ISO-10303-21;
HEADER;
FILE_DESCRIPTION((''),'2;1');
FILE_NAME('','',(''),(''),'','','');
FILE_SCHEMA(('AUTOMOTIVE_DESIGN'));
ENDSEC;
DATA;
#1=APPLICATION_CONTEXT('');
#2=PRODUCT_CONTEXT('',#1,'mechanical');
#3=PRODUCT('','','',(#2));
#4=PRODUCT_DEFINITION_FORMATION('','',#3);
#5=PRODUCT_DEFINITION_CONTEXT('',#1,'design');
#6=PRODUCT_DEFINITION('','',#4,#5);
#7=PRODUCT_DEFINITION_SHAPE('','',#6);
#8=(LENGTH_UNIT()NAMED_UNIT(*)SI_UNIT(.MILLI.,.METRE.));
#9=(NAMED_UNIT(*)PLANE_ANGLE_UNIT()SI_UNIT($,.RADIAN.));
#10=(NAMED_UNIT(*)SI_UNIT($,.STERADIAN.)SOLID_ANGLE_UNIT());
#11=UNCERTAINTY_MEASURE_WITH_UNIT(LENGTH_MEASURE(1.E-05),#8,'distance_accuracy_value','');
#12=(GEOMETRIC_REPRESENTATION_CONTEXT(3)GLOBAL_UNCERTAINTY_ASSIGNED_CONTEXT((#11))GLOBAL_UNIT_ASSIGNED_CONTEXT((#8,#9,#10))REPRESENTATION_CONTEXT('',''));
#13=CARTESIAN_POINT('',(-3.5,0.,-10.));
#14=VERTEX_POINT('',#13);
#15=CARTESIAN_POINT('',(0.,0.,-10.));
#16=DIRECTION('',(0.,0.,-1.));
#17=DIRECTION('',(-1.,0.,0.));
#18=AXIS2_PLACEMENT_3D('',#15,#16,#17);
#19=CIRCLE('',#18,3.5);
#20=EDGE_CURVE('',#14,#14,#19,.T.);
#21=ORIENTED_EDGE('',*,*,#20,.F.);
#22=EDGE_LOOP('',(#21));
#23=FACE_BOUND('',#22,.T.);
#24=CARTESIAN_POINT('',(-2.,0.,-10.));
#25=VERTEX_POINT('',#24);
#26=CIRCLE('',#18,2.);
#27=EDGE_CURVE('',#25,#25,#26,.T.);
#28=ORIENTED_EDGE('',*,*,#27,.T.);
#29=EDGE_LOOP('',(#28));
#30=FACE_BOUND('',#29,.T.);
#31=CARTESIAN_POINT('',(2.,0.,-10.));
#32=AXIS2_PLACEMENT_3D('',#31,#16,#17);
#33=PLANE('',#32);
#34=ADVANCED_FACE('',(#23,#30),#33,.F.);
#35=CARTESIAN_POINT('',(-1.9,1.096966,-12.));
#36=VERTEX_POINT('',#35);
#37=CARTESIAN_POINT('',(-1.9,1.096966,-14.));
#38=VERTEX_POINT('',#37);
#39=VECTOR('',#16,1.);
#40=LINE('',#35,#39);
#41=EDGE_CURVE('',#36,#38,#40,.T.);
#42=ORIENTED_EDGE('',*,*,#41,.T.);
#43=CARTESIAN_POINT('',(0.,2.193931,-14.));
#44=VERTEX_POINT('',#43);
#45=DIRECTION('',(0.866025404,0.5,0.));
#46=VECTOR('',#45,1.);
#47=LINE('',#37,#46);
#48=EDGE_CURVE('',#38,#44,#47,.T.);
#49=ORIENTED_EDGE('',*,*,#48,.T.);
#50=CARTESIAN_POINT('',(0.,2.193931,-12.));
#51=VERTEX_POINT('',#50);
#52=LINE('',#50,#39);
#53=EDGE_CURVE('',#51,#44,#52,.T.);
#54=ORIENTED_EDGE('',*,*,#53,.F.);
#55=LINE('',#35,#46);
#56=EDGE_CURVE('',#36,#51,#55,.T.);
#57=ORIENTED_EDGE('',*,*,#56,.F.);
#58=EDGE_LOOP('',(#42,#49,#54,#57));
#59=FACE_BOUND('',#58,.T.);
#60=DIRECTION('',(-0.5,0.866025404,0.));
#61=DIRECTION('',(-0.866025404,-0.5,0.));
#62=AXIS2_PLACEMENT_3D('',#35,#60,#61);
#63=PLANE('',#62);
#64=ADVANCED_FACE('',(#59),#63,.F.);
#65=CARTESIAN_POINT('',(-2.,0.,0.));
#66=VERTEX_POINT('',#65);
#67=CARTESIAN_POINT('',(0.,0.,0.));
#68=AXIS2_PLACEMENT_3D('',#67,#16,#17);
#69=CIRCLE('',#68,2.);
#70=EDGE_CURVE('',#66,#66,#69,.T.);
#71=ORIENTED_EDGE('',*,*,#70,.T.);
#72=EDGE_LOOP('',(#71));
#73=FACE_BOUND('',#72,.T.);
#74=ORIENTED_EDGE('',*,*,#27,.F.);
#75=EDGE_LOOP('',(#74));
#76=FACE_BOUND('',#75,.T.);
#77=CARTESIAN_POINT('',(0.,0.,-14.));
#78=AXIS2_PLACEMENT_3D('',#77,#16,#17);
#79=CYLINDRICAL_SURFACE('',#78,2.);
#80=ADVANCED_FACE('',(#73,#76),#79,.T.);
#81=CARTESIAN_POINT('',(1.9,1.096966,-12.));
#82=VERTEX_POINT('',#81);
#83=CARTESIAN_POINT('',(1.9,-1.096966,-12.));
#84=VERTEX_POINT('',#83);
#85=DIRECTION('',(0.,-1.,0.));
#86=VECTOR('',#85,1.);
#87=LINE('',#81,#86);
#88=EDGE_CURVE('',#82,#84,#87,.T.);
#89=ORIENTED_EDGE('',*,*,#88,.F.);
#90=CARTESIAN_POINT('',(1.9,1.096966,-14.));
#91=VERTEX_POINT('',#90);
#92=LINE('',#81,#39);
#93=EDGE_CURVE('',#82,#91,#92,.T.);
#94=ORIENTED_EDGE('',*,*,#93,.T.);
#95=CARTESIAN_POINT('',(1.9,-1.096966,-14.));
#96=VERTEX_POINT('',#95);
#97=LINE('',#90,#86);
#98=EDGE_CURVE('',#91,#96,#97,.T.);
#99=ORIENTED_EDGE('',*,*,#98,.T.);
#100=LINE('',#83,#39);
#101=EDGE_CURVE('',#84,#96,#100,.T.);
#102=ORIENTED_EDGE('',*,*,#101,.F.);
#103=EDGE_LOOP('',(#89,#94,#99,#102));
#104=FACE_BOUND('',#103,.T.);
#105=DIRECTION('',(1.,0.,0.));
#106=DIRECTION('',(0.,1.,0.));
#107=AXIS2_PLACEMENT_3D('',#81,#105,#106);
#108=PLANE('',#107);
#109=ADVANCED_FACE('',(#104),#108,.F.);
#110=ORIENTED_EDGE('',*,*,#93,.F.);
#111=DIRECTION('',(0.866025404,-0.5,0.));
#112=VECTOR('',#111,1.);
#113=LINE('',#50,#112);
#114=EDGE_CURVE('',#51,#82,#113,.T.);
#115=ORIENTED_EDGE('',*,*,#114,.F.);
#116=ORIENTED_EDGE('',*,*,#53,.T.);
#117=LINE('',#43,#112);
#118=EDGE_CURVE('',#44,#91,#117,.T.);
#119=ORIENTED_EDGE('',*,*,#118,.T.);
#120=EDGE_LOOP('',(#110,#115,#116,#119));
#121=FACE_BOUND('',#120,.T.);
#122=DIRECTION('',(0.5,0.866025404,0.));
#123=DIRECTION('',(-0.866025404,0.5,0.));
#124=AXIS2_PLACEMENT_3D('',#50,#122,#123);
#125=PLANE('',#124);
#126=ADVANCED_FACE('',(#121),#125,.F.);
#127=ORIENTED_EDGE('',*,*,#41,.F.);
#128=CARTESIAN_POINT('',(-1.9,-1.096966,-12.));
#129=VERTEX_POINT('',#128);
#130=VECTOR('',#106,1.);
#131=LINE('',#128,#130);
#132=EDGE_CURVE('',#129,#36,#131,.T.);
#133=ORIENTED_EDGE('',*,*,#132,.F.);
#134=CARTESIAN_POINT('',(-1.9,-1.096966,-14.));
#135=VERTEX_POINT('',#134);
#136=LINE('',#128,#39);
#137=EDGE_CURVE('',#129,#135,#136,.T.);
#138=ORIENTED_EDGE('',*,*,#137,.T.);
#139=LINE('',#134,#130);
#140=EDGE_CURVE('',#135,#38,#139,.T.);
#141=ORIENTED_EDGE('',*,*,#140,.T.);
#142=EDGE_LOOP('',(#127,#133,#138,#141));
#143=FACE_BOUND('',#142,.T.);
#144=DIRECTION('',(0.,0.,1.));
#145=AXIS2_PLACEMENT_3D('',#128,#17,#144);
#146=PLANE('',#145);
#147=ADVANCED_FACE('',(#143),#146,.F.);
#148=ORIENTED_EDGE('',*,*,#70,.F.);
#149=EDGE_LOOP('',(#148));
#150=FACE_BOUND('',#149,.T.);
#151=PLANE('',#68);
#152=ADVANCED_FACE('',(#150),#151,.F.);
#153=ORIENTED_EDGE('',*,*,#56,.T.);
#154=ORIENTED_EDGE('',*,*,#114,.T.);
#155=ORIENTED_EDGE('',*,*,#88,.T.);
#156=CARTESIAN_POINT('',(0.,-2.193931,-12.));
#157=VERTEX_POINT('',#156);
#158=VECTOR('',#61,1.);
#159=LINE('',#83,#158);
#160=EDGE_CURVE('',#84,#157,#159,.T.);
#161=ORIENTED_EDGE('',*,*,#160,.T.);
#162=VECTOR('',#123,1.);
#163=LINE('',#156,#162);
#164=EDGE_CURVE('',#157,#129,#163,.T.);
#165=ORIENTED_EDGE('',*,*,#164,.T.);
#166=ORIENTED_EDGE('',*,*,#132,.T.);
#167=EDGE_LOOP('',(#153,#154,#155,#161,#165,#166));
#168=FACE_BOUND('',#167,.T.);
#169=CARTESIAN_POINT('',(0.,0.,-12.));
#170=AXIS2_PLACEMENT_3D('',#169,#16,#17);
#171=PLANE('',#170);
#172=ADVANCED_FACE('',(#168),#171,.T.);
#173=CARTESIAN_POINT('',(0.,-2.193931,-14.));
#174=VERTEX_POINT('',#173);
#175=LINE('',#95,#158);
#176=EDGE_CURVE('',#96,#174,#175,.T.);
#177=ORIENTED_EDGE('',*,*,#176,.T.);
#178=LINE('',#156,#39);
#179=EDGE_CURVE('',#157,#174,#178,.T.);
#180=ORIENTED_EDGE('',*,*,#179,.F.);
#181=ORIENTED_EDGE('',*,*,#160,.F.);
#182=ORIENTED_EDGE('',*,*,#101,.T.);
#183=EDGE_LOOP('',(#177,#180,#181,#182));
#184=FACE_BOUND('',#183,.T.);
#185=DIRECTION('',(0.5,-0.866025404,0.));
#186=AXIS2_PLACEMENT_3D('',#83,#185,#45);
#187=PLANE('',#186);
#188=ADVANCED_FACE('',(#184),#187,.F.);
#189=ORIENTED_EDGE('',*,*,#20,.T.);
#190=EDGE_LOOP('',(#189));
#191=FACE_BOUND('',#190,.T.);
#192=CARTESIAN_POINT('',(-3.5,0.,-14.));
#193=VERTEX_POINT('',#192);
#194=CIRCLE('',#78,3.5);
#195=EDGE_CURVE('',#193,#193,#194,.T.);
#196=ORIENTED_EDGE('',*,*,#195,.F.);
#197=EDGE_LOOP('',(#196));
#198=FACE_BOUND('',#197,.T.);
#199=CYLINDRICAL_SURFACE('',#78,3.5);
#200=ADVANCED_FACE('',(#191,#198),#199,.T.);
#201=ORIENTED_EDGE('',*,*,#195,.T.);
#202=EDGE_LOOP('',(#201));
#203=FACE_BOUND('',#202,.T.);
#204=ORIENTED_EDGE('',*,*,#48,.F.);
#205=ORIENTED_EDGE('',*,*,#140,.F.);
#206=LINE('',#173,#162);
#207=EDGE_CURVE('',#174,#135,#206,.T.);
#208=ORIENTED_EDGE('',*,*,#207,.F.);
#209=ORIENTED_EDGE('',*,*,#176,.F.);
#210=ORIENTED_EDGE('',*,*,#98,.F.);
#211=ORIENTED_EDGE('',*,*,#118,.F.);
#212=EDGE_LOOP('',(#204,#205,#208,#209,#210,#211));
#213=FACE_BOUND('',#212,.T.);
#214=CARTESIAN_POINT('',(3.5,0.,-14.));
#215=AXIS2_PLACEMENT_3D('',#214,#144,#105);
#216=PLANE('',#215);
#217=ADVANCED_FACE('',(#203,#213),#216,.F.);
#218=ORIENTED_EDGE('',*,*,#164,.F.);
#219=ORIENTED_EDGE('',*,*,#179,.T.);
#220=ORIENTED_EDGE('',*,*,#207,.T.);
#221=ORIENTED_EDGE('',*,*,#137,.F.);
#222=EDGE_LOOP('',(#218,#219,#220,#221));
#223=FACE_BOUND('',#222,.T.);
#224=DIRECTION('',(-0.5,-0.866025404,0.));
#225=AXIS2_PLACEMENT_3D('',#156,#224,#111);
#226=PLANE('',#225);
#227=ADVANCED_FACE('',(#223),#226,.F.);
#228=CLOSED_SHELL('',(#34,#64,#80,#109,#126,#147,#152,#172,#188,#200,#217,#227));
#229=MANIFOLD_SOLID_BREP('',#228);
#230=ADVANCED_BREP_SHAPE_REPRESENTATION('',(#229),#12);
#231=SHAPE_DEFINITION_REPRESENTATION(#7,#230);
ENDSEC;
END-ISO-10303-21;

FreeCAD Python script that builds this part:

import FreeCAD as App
import Part
import Sketcher
from FreeCAD import Vector
Q = App.Units.Quantity


def add_polygon(sketch, points):
    """Adds a closed chain of lines whose ends are joined by coincident constraints."""
    first, n = sketch.GeometryCount, len(points)
    for a, b in zip(points, points[1:] + points[:1]):
        sketch.addGeometry(Part.LineSegment(App.Vector(*a, 0), App.Vector(*b, 0)), False)
    for i in range(n):
        sketch.addConstraint(Sketcher.Constraint("Coincident", first + i, 2, first + (i + 1) % n, 1))

doc = App.newDocument("Part")
body = doc.addObject("PartDesign::Body", "Body")

sketch1 = body.newObject("Sketcher::SketchObject", "Sketch")
sketch1.AttachmentSupport = (doc.getObject("XZ_Plane"), [""])
sketch1.MapMode = "FlatFace"
add_polygon(sketch1, [(0, 0), (2, 0), (2, -10), (3.5, -10), (3.5, -14), (0, -14)])
sketch1.addConstraint([
    Sketcher.Constraint("Horizontal", 0),
    Sketcher.Constraint("Vertical", 1),
    Sketcher.Constraint("Horizontal", 2),
    Sketcher.Constraint("Vertical", 3),
    Sketcher.Constraint("Horizontal", 4),
    Sketcher.Constraint("Vertical", 5),
    Sketcher.Constraint("Coincident", 5, 2, -1, 1),
    Sketcher.Constraint("DistanceX", 0, 1, 0, 2, Q("2 mm")),
    Sketcher.Constraint("DistanceY", 1, 2, 1, 1, Q("10 mm")),
    Sketcher.Constraint("DistanceY", 3, 2, 3, 1, Q("4 mm")),
    Sketcher.Constraint("DistanceX", 2, 1, 2, 2, Q("1.5 mm")),
])
revolution = body.newObject("PartDesign::Revolution", "Revolution")
revolution.Profile = sketch1
revolution.ReferenceAxis = (sketch1, ["V_Axis"])
revolution.Angle = 360

sketch2 = body.newObject("Sketcher::SketchObject", "Sketch001")
sketch2.AttachmentSupport = (doc.getObject("XY_Plane"), [""])
sketch2.MapMode = "FlatFace"
sketch2.AttachmentOffset = App.Placement(Vector(0, 0, -14), App.Rotation())
add_polygon(sketch2, [(0, 2.2), (1.9, 1.1), (1.9, -1.1), (0, -2.2), (-1.9, -1.1), (-1.9, 1.1)])
sketch2.addConstraint([
    Sketcher.Constraint("Vertical", 1),
    Sketcher.Constraint("Vertical", 4),
    Sketcher.Constraint("Symmetric", 0, 2, 3, 2, -1, 1),
    Sketcher.Constraint("Symmetric", 2, 2, 5, 2, -1, 1),
    Sketcher.Constraint("PointOnObject", 2, 2, -2),
    Sketcher.Constraint("Parallel", 2, 5),
    Sketcher.Constraint("Horizontal", 1, 2, 3, 2),
    Sketcher.Constraint("Angle", 0, Q("-30 deg")),
    Sketcher.Constraint("DistanceX", -1, 1, 0, 2, Q("1.9 mm")),
    Sketcher.Constraint("DistanceY", 1, 2, 1, 1, Q("2.193931 mm")),
])
pocket1 = body.newObject("PartDesign::Pocket", "Pocket")
pocket1.Profile = sketch2
pocket1.Length = 2
pocket1.Reversed = True

doc.recompute()
